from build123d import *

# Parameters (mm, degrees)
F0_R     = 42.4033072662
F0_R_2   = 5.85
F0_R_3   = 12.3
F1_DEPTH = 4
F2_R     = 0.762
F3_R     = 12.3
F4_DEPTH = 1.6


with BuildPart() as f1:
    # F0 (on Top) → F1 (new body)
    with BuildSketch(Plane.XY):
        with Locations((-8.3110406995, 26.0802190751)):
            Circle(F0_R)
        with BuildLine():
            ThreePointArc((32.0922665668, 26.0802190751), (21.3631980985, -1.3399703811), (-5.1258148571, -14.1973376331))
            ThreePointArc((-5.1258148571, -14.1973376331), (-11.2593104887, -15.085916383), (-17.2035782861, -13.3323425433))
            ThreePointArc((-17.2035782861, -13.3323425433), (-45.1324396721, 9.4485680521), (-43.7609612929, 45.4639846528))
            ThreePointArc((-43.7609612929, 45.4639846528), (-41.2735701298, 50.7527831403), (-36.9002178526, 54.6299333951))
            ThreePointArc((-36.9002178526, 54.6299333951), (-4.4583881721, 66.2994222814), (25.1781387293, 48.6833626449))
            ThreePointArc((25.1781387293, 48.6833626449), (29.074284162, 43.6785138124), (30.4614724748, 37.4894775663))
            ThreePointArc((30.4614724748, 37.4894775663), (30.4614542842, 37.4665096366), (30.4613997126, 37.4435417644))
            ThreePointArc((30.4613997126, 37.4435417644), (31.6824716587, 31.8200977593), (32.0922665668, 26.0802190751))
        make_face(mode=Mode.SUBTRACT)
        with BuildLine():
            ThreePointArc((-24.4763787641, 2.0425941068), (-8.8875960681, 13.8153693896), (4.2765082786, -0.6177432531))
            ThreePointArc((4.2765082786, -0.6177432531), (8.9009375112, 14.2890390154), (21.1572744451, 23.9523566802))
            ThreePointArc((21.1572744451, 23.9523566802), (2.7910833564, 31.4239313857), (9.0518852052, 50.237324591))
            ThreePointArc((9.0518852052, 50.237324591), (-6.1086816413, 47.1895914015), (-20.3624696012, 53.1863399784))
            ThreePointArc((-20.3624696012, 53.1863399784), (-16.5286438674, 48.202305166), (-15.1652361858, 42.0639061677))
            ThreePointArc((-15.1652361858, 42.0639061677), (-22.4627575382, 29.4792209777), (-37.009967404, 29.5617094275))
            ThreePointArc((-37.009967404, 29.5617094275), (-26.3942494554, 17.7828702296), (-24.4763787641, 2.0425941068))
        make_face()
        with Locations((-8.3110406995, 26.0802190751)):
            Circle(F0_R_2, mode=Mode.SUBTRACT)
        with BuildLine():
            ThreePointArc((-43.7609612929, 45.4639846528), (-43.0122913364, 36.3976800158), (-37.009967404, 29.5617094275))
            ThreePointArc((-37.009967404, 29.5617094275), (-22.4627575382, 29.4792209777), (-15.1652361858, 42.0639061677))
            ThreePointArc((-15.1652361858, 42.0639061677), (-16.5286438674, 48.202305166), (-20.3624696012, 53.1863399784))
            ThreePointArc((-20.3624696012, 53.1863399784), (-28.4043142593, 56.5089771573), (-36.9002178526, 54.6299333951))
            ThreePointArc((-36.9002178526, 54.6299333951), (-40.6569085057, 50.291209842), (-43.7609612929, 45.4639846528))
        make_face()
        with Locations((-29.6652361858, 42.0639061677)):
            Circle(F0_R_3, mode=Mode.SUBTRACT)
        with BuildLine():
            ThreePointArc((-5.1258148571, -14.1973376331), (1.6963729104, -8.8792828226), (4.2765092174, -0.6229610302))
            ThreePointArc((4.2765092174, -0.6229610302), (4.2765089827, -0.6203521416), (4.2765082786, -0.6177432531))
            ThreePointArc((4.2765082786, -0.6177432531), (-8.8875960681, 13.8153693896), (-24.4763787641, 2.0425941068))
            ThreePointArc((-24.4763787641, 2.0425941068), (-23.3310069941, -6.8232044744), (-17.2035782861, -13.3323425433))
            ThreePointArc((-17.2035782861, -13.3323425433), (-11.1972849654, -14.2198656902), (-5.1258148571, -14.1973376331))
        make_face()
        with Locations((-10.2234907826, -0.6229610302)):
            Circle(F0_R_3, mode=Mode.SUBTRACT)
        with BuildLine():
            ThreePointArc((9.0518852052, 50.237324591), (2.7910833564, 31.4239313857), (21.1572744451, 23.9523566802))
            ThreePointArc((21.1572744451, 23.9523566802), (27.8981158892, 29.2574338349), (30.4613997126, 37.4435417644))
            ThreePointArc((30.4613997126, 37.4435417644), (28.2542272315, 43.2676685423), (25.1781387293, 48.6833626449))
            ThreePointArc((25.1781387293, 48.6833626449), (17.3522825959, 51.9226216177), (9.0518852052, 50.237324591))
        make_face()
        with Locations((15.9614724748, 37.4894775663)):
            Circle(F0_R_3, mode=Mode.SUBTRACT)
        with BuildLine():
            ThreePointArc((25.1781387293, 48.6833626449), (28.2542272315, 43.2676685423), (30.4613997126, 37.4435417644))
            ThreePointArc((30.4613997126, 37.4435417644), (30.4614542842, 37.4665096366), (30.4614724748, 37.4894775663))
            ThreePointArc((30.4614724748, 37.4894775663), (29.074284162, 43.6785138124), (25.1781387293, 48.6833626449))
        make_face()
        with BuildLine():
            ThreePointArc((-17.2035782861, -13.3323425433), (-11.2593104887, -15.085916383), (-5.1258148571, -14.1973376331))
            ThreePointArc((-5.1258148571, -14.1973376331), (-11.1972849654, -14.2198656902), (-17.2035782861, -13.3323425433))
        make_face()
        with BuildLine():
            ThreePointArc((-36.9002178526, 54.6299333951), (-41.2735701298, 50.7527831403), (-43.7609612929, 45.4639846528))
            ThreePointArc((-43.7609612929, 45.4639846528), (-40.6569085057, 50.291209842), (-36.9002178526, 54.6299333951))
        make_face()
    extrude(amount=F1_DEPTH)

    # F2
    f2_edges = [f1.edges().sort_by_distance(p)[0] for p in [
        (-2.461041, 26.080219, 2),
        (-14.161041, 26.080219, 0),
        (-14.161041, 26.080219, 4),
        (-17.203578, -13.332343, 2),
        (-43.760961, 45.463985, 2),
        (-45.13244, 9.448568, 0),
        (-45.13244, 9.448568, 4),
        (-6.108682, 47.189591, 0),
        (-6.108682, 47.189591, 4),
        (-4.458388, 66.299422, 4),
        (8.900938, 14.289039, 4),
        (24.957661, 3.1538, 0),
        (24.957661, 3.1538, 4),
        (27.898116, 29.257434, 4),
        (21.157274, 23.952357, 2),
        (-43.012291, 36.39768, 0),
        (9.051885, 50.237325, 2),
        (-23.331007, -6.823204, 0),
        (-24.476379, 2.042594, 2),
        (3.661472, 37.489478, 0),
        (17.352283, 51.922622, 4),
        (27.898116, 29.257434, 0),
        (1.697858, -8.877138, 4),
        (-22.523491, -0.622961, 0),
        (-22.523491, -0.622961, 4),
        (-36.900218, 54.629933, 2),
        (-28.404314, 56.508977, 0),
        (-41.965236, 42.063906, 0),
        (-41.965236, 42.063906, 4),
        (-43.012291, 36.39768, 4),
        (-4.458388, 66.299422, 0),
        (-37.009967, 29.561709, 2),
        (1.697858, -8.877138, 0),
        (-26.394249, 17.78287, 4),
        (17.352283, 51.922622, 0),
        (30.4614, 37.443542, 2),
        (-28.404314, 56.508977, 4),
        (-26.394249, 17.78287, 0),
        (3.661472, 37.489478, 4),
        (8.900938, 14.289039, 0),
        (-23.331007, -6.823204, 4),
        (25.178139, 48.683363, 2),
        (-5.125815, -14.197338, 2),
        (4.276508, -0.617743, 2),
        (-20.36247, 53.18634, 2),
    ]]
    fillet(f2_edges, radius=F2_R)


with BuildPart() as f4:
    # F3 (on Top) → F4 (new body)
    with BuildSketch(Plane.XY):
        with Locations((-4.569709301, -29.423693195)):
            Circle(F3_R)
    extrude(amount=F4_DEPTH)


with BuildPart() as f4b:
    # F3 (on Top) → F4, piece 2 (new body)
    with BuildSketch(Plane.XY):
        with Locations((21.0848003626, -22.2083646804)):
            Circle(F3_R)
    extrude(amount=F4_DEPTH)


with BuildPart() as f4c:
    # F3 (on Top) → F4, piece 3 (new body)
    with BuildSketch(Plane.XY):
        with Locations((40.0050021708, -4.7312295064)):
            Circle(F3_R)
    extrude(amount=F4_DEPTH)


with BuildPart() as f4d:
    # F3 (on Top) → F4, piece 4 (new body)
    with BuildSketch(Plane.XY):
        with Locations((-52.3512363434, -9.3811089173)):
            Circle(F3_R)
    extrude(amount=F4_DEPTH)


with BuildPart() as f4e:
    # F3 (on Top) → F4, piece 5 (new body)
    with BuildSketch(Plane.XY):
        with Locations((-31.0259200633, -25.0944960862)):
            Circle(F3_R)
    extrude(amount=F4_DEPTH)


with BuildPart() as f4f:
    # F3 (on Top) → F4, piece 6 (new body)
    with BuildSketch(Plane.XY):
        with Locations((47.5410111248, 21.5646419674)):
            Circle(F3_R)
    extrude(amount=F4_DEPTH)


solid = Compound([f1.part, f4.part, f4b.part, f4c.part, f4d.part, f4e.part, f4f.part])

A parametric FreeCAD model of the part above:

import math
import FreeCAD as App
import Part
import Sketcher

V = App.Vector
Q = App.Units.Quantity


def edges_at(feature, points):
    """Names of the edges that pass closest to the given points."""
    edges = feature.Shape.Edges
    near = lambda p: min(range(len(edges)), key=lambda i: edges[i].distToShape(Part.Vertex(*p))[0])
    return sorted({f"Edge{near(p) + 1}" for p in points})

doc = App.newDocument("Part")
body = doc.addObject("PartDesign::Body", "Body")

# Sketch on XY plane
sketch1 = body.newObject("Sketcher::SketchObject", "Sketch")
sketch1.AttachmentSupport = (doc.getObject("XY_Plane"), [""])
sketch1.MapMode = "FlatFace"
sketch1.addGeometry(Part.Circle(V(-8.311, 26.08, 0), V(0, 0, 1), 42.403), False)
sketch1.addGeometry(Part.Circle(V(-10.223, -0.623, 0), V(0, 0, 1), 12.3), False)
sketch1.addGeometry(Part.ArcOfCircle(Part.Circle(V(-8.311, 26.08, 0), V(0, 0, 1), 40.403), math.radians(151), math.radians(257)), False)
sketch1.addGeometry(Part.ArcOfCircle(Part.Circle(V(-29.665, 42.064, 0), V(0, 0, 1), 14.5), math.radians(166), math.radians(240)), False)
sketch1.addGeometry(Part.ArcOfCircle(Part.Circle(V(-50.336, 6.879, 0), V(0, 0, 1), 26.308), math.radians(-11), math.radians(60)), False)
sketch1.addGeometry(Part.ArcOfCircle(Part.Circle(V(-10.223, -0.623, 0), V(0, 0, 1), 14.5), math.radians(169), math.radians(241)), False)
sketch1.addGeometry(Part.Circle(V(-8.311, 26.08, 0), V(0, 0, 1), 5.85), False)
sketch1.addGeometry(Part.ArcOfCircle(Part.Circle(V(-8.311, 26.08, 0), V(0, 0, 1), 40.403), math.radians(-85), math.radians(0)), False)
sketch1.addGeometry(Part.ArcOfCircle(Part.Circle(V(-10.223, -0.623, 0), V(0, 0, 1), 14.5), math.radians(-69), math.radians(0)), False)
sketch1.addGeometry(Part.ArcOfCircle(Part.Circle(V(-10.223, -0.623, 0), V(0, 0, 1), 14.5), math.radians(0), math.radians(0.02)), False)
sketch1.addGeometry(Part.ArcOfCircle(Part.Circle(V(30.584, -0.608, 0), V(0, 0, 1), 26.308), math.radians(111), math.radians(180)), False)
sketch1.addGeometry(Part.ArcOfCircle(Part.Circle(V(15.961, 37.489, 0), V(0, 0, 1), 14.5), math.radians(-69), math.radians(0)), False)
sketch1.addGeometry(Part.ArcOfCircle(Part.Circle(V(-8.311, 26.08, 0), V(0, 0, 1), 40.403), math.radians(0), math.radians(16.33)), False)
sketch1.addGeometry(Part.Circle(V(-29.665, 42.064, 0), V(0, 0, 1), 12.3), False)
sketch1.addGeometry(Part.Circle(V(15.961, 37.489, 0), V(0, 0, 1), 12.3), False)
sketch1.addGeometry(Part.ArcOfCircle(Part.Circle(V(-29.665, 42.064, 0), V(0, 0, 1), 14.5), math.radians(50), math.radians(120)), False)
sketch1.addGeometry(Part.ArcOfCircle(Part.Circle(V(-8.311, 26.08, 0), V(0, 0, 1), 40.403), math.radians(34), math.radians(135)), False)
sketch1.addGeometry(Part.ArcOfCircle(Part.Circle(V(15.961, 37.489, 0), V(0, 0, 1), 14.5), math.radians(51), math.radians(118)), False)
sketch1.addGeometry(Part.ArcOfCircle(Part.Circle(V(-3.484, 73.366, 0), V(0, 0, 1), 26.308), math.radians(-130), math.radians(-62)), False)
sketch1.addConstraint(Sketcher.Constraint("Coincident", 2, 1, 3, 1))
sketch1.addConstraint(Sketcher.Constraint("Tangent", 3, 2, 4, 2))
sketch1.addConstraint(Sketcher.Constraint("Tangent", 4, 1, 5, 1))
sketch1.addConstraint(Sketcher.Constraint("Coincident", 5, 2, 2, 2))
sketch1.addConstraint(Sketcher.Constraint("Coincident", 7, 1, 8, 1))
sketch1.addConstraint(Sketcher.Constraint("Tangent", 8, 2, 9, 1))
sketch1.addConstraint(Sketcher.Constraint("Tangent", 9, 2, 10, 2))
sketch1.addConstraint(Sketcher.Constraint("Tangent", 10, 1, 11, 1))
sketch1.addConstraint(Sketcher.Constraint("Coincident", 11, 2, 12, 2))
sketch1.addConstraint(Sketcher.Constraint("Tangent", 12, 1, 7, 2))
sketch1.addConstraint(Sketcher.Constraint("Coincident", 15, 2, 16, 2))
sketch1.addConstraint(Sketcher.Constraint("Coincident", 16, 1, 17, 1))
sketch1.addConstraint(Sketcher.Constraint("Tangent", 17, 2, 18, 2))
sketch1.addConstraint(Sketcher.Constraint("Tangent", 18, 1, 15, 1))
sketch1.addConstraint(Sketcher.Constraint("Coincident", 2, 3, 0, 3))
sketch1.addConstraint(Sketcher.Constraint("Coincident", 5, 3, 1, 3))
sketch1.addConstraint(Sketcher.Constraint("Coincident", 6, 3, 0, 3))
sketch1.addConstraint(Sketcher.Constraint("Coincident", 7, 3, 0, 3))
sketch1.addConstraint(Sketcher.Constraint("Coincident", 8, 3, 1, 3))
sketch1.addConstraint(Sketcher.Constraint("Coincident", 13, 3, 3, 3))
sketch1.addConstraint(Sketcher.Constraint("Coincident", 14, 3, 11, 3))
sketch1.addConstraint(Sketcher.Constraint("Coincident", 15, 3, 3, 3))
sketch1.addConstraint(Sketcher.Constraint("Coincident", 16, 3, 0, 3))
sketch1.addConstraint(Sketcher.Constraint("Coincident", 17, 3, 11, 3))
sketch1.addConstraint(Sketcher.Constraint("Equal", 3, 5))
sketch1.addConstraint(Sketcher.Constraint("Equal", 2, 7))
sketch1.addConstraint(Sketcher.Constraint("Equal", 5, 8))
sketch1.addConstraint(Sketcher.Constraint("Equal", 8, 9))
sketch1.addConstraint(Sketcher.Constraint("Equal", 4, 10))
sketch1.addConstraint(Sketcher.Constraint("Equal", 9, 11))
sketch1.addConstraint(Sketcher.Constraint("Equal", 7, 12))
sketch1.addConstraint(Sketcher.Constraint("Equal", 1, 13))
sketch1.addConstraint(Sketcher.Constraint("Equal", 13, 14))
sketch1.addConstraint(Sketcher.Constraint("Equal", 11, 15))
sketch1.addConstraint(Sketcher.Constraint("Equal", 12, 16))
sketch1.addConstraint(Sketcher.Constraint("Equal", 15, 17))
sketch1.addConstraint(Sketcher.Constraint("Equal", 10, 18))
sketch1.addConstraint(Sketcher.Constraint("Horizontal", 9, 3, 8, 2))
sketch1.addConstraint(Sketcher.Constraint("Horizontal", 16, 3, 12, 1))
sketch1.addConstraint(Sketcher.Constraint("Diameter", 1, Q("24.6 mm")))
sketch1.addConstraint(Sketcher.Constraint("Diameter", 6, Q("11.7 mm")))
sketch1.addConstraint(Sketcher.Constraint("Radius", 3, Q("14.5 mm")))
sketch1.addConstraint(Sketcher.Constraint("Radius", 4, Q("26.307602 mm")))
sketch1.addConstraint(Sketcher.Constraint("Diameter", 0, Q("84.806615 mm")))
sketch1.addConstraint(Sketcher.Constraint("Radius", 2, Q("40.403307 mm")))
sketch1.addConstraint(Sketcher.Constraint("DistanceX", 18, 3, -1, 1, Q("3.484299 mm")))
sketch1.addConstraint(Sketcher.Constraint("DistanceX", -1, 1, 11, 2, Q("30.4614 mm")))
sketch1.addConstraint(Sketcher.Constraint("DistanceX", 4, 3, 0, 3, Q("42.0246 mm")))
sketch1.addConstraint(Sketcher.Constraint("DistanceX", 4, 1, 5, 2, Q("7.2728 mm")))
sketch1.addConstraint(Sketcher.Constraint("DistanceX", 11, 3, 10, 1, Q("5.195802 mm")))
sketch1.addConstraint(Sketcher.Constraint("DistanceX", 0, 3, -1, 1, Q("8.311041 mm")))
sketch1.addConstraint(Sketcher.Constraint("DistanceY", -1, 1, 0, 3, Q("26.080219 mm")))
sketch1.addConstraint(Sketcher.Constraint("DistanceX", 2, 1, -1, 1, Q("43.760961 mm")))
pad1 = body.newObject("PartDesign::Pad", "Pad")
pad1.Profile = sketch1
pad1.Length = 4
doc.recompute()

fillet = body.newObject("PartDesign::Fillet", "Fillet")
fillet.Base = (pad1, edges_at(pad1, [
    (-2.461, 26.08, 2),
    (-14.161, 26.08, 0),
    (-14.161, 26.08, 4),
    (-17.204, -13.332, 2),
    (-43.761, 45.464, 2),
    (-45.132, 9.449, 0),
    (-45.132, 9.449, 4),
    (-6.109, 47.19, 0),
    (-6.109, 47.19, 4),
    (-4.458, 66.299, 4),
    (8.901, 14.289, 4),
    (21.363, -1.34, 0),
    (21.363, -1.34, 4),
    (27.898, 29.257, 4),
    (21.157, 23.952, 2),
    (-43.012, 36.398, 0),
    (9.052, 50.237, 2),
    (-23.331, -6.823, 0),
    (-24.476, 2.043, 2),
    (3.661, 37.489, 0),
    (17.352, 51.923, 4),
    (27.898, 29.257, 0),
    (1.696, -8.879, 4),
    (-22.523, -0.623, 0),
    (-22.523, -0.623, 4),
    (-36.9, 54.63, 2),
    (-28.404, 56.509, 0),
    (-41.965, 42.064, 0),
    (-41.965, 42.064, 4),
    (-43.012, 36.398, 4),
    (-4.458, 66.299, 0),
    (-37.01, 29.562, 2),
    (1.696, -8.879, 0),
    (-26.394, 17.783, 4),
    (17.352, 51.923, 0),
    (30.461, 37.444, 2),
    (-28.404, 56.509, 4),
    (-26.394, 17.783, 0),
    (3.661, 37.489, 4),
    (8.901, 14.289, 0),
    (-23.331, -6.823, 4),
    (25.178, 48.683, 2),
    (-5.126, -14.197, 2),
    (4.277, -0.618, 2),
    (-20.362, 53.186, 2),
]))
fillet.Radius = 0.762
body2 = doc.addObject("PartDesign::Body", "Body001")

# Sketch on XY plane
sketch2 = body2.newObject("Sketcher::SketchObject", "Sketch001")
sketch2.AttachmentSupport = (doc.getObject("XY_Plane001"), [""])
sketch2.MapMode = "FlatFace"
sketch2.addGeometry(Part.Circle(V(-5, -29, 0), V(0, 0, 1), 12), False)
sketch2.addConstraint(Sketcher.Constraint("Diameter", 0, Q("24.6 mm")))
sketch2.addConstraint(Sketcher.Constraint("DistanceX", 0, 3, -1, 1, Q("4.569709 mm")))
sketch2.addConstraint(Sketcher.Constraint("DistanceY", 0, 3, -1, 1, Q("29.423693 mm")))
pad2 = body2.newObject("PartDesign::Pad", "Pad001")
pad2.Profile = sketch2
pad2.Length = 1.6
body3 = doc.addObject("PartDesign::Body", "Body002")

# Sketch on XY plane
sketch3 = body3.newObject("Sketcher::SketchObject", "Sketch002")
sketch3.AttachmentSupport = (doc.getObject("XY_Plane002"), [""])
sketch3.MapMode = "FlatFace"
sketch3.addGeometry(Part.Circle(V(21, -22, 0), V(0, 0, 1), 12), False)
sketch3.addConstraint(Sketcher.Constraint("Diameter", 0, Q("24.6 mm")))
sketch3.addConstraint(Sketcher.Constraint("DistanceX", -1, 1, 0, 3, Q("21.0848 mm")))
sketch3.addConstraint(Sketcher.Constraint("DistanceY", 0, 3, -1, 1, Q("22.208365 mm")))
pad3 = body3.newObject("PartDesign::Pad", "Pad002")
pad3.Profile = sketch3
pad3.Length = 1.6
body4 = doc.addObject("PartDesign::Body", "Body003")

# Sketch on XY plane
sketch4 = body4.newObject("Sketcher::SketchObject", "Sketch003")
sketch4.AttachmentSupport = (doc.getObject("XY_Plane003"), [""])
sketch4.MapMode = "FlatFace"
sketch4.addGeometry(Part.Circle(V(40, -5, 0), V(0, 0, 1), 12), False)
sketch4.addConstraint(Sketcher.Constraint("Diameter", 0, Q("24.6 mm")))
sketch4.addConstraint(Sketcher.Constraint("DistanceY", 0, 3, -1, 1, Q("4.73123 mm")))
sketch4.addConstraint(Sketcher.Constraint("DistanceX", -1, 1, 0, 3, Q("40.005002 mm")))
pad4 = body4.newObject("PartDesign::Pad", "Pad003")
pad4.Profile = sketch4
pad4.Length = 1.6
body5 = doc.addObject("PartDesign::Body", "Body004")

# Sketch on XY plane
sketch5 = body5.newObject("Sketcher::SketchObject", "Sketch004")
sketch5.AttachmentSupport = (doc.getObject("XY_Plane004"), [""])
sketch5.MapMode = "FlatFace"
sketch5.addGeometry(Part.Circle(V(-52, -9, 0), V(0, 0, 1), 12), False)
sketch5.addConstraint(Sketcher.Constraint("Diameter", 0, Q("24.6 mm")))
sketch5.addConstraint(Sketcher.Constraint("DistanceY", 0, 3, -1, 1, Q("9.381109 mm")))
sketch5.addConstraint(Sketcher.Constraint("DistanceX", 0, 3, -1, 1, Q("52.351236 mm")))
pad5 = body5.newObject("PartDesign::Pad", "Pad004")
pad5.Profile = sketch5
pad5.Length = 1.6
body6 = doc.addObject("PartDesign::Body", "Body005")

# Sketch on XY plane
sketch6 = body6.newObject("Sketcher::SketchObject", "Sketch005")
sketch6.AttachmentSupport = (doc.getObject("XY_Plane005"), [""])
sketch6.MapMode = "FlatFace"
sketch6.addGeometry(Part.Circle(V(-31, -25, 0), V(0, 0, 1), 12), False)
sketch6.addConstraint(Sketcher.Constraint("Diameter", 0, Q("24.6 mm")))
sketch6.addConstraint(Sketcher.Constraint("DistanceX", 0, 3, -1, 1, Q("31.02592 mm")))
sketch6.addConstraint(Sketcher.Constraint("DistanceY", 0, 3, -1, 1, Q("25.094496 mm")))
pad6 = body6.newObject("PartDesign::Pad", "Pad005")
pad6.Profile = sketch6
pad6.Length = 1.6
body7 = doc.addObject("PartDesign::Body", "Body006")

# Sketch on XY plane
sketch7 = body7.newObject("Sketcher::SketchObject", "Sketch006")
sketch7.AttachmentSupport = (doc.getObject("XY_Plane006"), [""])
sketch7.MapMode = "FlatFace"
sketch7.addGeometry(Part.Circle(V(48, 22, 0), V(0, 0, 1), 12), False)
sketch7.addConstraint(Sketcher.Constraint("Diameter", 0, Q("24.6 mm")))
sketch7.addConstraint(Sketcher.Constraint("DistanceX", -1, 1, 0, 3, Q("47.541011 mm")))
sketch7.addConstraint(Sketcher.Constraint("DistanceY", -1, 1, 0, 3, Q("21.564642 mm")))
pad7 = body7.newObject("PartDesign::Pad", "Pad006")
pad7.Profile = sketch7
pad7.Length = 1.6

doc.recompute()
